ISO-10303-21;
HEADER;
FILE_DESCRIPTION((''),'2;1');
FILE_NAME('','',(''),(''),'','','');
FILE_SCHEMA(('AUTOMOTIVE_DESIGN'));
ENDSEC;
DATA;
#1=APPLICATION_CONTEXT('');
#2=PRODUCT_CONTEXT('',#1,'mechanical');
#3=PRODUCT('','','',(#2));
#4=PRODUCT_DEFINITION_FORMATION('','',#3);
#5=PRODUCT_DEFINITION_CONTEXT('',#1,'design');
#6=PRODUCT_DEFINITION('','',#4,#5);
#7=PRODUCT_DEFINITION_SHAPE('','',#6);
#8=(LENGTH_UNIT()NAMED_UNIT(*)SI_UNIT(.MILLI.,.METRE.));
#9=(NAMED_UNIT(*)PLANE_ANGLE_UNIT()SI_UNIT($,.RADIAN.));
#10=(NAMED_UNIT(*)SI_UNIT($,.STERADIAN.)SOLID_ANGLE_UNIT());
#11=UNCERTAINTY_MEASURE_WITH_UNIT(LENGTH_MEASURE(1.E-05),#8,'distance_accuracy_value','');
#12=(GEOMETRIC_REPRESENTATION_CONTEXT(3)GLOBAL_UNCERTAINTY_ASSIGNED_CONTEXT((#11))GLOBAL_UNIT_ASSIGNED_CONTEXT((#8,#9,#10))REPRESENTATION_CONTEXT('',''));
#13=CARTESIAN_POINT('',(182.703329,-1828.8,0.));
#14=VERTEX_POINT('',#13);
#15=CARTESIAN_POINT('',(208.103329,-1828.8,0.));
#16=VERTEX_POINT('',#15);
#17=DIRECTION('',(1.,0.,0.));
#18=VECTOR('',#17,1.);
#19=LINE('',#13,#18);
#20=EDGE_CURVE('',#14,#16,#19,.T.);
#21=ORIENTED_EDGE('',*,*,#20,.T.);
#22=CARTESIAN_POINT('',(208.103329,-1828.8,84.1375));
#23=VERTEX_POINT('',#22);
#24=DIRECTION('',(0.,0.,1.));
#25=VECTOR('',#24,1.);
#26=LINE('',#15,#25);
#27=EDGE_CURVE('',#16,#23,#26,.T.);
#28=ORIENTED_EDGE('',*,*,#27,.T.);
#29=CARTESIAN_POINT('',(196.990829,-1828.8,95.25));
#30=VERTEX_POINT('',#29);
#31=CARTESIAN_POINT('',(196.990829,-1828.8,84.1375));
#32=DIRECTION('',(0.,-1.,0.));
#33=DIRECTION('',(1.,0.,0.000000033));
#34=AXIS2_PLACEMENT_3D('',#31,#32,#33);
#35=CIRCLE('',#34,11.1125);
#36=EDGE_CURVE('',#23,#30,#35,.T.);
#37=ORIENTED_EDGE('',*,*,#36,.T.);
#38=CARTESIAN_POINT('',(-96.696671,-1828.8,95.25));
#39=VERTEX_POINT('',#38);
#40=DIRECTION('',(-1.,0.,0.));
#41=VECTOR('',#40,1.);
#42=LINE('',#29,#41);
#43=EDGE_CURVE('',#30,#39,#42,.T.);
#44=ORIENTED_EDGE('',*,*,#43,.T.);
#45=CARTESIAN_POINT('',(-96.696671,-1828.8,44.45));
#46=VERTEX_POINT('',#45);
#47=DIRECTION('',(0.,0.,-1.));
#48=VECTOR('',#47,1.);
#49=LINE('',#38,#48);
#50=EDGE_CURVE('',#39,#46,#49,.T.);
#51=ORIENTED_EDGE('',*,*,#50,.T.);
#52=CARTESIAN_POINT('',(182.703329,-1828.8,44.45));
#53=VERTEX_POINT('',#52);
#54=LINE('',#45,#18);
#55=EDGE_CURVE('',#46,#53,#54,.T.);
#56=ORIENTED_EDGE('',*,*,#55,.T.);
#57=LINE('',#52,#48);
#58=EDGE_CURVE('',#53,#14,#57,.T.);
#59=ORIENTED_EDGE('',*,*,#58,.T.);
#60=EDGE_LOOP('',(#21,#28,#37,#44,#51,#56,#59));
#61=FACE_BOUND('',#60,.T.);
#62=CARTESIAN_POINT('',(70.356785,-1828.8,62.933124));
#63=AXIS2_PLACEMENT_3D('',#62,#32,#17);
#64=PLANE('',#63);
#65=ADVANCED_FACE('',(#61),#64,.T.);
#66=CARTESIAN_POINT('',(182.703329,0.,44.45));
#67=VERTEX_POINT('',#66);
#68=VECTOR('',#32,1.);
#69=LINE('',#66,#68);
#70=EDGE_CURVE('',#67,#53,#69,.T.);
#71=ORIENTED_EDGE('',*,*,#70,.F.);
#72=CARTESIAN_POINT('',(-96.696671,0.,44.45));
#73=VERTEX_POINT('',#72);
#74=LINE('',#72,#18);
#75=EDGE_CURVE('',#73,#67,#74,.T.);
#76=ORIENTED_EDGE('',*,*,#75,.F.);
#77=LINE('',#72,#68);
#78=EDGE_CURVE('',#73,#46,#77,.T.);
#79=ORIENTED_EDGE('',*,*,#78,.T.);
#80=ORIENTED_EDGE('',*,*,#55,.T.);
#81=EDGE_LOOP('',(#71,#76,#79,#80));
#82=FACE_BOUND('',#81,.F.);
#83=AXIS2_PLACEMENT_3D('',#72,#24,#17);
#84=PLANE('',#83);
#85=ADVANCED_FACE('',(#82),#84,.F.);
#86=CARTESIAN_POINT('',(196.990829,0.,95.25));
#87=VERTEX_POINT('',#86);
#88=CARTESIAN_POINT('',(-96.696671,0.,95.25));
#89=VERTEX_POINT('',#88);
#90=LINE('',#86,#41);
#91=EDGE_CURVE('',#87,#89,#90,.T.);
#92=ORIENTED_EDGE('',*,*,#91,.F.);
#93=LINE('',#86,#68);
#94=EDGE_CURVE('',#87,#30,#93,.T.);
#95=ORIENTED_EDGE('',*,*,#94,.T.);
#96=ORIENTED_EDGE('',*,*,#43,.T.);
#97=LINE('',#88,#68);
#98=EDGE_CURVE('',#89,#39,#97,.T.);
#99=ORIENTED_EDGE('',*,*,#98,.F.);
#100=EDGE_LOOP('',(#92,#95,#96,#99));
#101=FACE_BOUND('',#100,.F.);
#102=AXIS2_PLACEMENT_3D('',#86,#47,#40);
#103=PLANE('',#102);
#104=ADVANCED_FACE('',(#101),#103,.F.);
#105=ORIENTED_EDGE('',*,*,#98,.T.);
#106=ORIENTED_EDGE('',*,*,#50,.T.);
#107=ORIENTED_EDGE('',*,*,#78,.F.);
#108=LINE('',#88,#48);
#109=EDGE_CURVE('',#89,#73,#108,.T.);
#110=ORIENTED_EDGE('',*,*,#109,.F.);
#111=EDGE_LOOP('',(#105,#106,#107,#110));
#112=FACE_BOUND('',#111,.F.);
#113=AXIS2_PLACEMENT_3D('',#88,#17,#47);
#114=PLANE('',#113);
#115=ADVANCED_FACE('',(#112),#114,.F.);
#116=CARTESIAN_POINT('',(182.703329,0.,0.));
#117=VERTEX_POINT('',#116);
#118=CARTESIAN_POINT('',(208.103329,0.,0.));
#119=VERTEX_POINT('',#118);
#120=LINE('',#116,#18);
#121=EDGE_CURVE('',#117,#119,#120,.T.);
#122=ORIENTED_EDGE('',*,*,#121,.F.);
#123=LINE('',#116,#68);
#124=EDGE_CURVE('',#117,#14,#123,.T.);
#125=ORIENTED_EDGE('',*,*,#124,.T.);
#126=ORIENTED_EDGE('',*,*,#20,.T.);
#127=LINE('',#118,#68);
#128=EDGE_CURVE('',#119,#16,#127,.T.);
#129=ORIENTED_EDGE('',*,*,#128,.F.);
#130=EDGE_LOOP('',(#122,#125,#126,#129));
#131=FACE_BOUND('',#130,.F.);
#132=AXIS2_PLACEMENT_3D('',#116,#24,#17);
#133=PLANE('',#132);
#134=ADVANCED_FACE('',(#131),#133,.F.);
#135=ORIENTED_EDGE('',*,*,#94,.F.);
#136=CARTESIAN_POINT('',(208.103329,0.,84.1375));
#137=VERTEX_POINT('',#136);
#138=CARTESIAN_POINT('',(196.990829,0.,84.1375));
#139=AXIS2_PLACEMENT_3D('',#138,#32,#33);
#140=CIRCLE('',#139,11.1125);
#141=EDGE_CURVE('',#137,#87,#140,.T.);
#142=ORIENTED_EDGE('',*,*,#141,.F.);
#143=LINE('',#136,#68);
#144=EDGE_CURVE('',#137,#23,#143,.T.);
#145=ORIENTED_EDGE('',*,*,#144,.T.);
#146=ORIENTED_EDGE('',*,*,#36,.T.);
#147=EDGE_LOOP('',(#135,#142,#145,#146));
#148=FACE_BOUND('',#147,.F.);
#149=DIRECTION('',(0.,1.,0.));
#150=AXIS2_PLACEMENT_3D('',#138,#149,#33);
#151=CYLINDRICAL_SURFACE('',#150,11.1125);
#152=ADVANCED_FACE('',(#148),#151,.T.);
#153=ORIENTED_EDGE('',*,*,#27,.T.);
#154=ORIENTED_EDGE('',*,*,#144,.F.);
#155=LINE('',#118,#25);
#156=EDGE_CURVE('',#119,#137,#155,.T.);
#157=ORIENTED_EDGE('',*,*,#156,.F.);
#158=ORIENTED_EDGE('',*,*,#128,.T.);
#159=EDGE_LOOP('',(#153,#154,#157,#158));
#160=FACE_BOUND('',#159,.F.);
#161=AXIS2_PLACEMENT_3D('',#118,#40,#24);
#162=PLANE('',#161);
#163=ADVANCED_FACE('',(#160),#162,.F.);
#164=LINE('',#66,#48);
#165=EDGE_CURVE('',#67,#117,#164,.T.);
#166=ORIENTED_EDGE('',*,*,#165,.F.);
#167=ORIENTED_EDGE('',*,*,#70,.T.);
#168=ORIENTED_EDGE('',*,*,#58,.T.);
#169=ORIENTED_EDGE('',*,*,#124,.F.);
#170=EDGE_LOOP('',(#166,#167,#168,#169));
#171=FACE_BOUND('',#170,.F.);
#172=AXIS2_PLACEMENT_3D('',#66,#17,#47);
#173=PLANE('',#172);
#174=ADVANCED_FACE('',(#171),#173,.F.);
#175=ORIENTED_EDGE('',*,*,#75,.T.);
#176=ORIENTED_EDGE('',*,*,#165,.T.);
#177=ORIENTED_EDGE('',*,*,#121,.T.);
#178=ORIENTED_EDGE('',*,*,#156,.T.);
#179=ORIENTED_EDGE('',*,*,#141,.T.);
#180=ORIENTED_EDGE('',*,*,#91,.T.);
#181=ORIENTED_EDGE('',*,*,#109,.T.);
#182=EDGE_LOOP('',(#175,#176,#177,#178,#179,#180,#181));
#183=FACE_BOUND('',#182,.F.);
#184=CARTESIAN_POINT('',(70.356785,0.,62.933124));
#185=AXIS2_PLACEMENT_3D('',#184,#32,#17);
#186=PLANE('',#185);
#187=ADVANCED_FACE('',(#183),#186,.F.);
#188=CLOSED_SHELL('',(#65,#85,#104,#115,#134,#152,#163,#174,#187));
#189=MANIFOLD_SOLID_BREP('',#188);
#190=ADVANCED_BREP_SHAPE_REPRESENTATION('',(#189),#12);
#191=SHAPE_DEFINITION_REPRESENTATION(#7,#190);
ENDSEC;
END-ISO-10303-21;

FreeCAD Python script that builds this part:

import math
import FreeCAD as App
import Part
import Sketcher

V = App.Vector
Q = App.Units.Quantity

doc = App.newDocument("Part")
body = doc.addObject("PartDesign::Body", "Body")

# Sketch on XZ plane
sketch1 = doc.addObject("Sketcher::SketchObject", "Sketch")
body.addObject(sketch1)
sketch1.AttachmentSupport = (doc.XZ_Plane, [""])
sketch1.MapMode = "FlatFace"
sketch1.addGeometry([
    Part.LineSegment(V(197, 95, 0), V(-97, 95, 0)),  # 0
    Part.LineSegment(V(-97, 95, 0), V(-97, 44, 0)),  # 1
    Part.LineSegment(V(-97, 44, 0), V(183, 44, 0)),  # 2
    Part.LineSegment(V(183, 44, 0), V(183, 0, 0)),  # 3
    Part.LineSegment(V(183, 0, 0), V(208, 0, 0)),  # 4
    Part.LineSegment(V(208, 0, 0), V(208, 84, 0)),  # 5
    Part.ArcOfCircle(Part.Circle(V(197, 84, 0), V(0, 0, 1), 11), math.radians(0), math.radians(90)),  # 6
], False)
sketch1.addConstraint([
    Sketcher.Constraint("Coincident", 0, 2, 1, 1),
    Sketcher.Constraint("Coincident", 1, 2, 2, 1),
    Sketcher.Constraint("Coincident", 2, 2, 3, 1),
    Sketcher.Constraint("Coincident", 3, 2, 4, 1),
    Sketcher.Constraint("Coincident", 4, 2, 5, 1),
    Sketcher.Constraint("Tangent", 5, 2, 6, 1),
    Sketcher.Constraint("Tangent", 6, 2, 0, 1),
    Sketcher.Constraint("Horizontal", 0),
    Sketcher.Constraint("Vertical", 1),
    Sketcher.Constraint("Horizontal", 2),
    Sketcher.Constraint("Vertical", 3),
    Sketcher.Constraint("Horizontal", 4),
    Sketcher.Constraint("Vertical", 5),
    Sketcher.Constraint("PointOnObject", 3, 2, -1),
    Sketcher.Constraint("DistanceX", 2, 1, 2, 2, Q("11 in")),
    Sketcher.Constraint("DistanceX", 4, 1, 4, 2, Q("1 in")),
    Sketcher.Constraint("DistanceY", 1, 2, 1, 1, Q("2 in")),
    Sketcher.Constraint("Radius", 6, Q("0.4375 in")),
    Sketcher.Constraint("DistanceY", 3, 2, 3, 1, Q("1.75 in")),
    Sketcher.Constraint("DistanceX", -1, 1, 6, 3, Q("196.990829 mm")),
])
pad1 = doc.addObject("PartDesign::Pad", "Pad")
body.addObject(pad1)
pad1.Profile = sketch1
pad1.Length = Q("72 in")

doc.recompute()
